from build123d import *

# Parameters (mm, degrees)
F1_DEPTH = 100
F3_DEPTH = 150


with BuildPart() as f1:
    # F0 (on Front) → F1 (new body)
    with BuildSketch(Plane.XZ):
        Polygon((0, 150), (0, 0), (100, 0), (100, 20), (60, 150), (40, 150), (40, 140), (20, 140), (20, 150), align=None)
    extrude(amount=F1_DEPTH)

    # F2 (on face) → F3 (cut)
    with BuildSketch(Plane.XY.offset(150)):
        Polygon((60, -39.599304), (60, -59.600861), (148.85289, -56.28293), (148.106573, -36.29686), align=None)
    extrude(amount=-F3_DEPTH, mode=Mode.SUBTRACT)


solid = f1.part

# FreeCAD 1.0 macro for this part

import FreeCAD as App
import Part
import Sketcher
Q = App.Units.Quantity

doc = App.newDocument("Part")
params = doc.addObject("Spreadsheet::Sheet", "Params")
for row, (alias, value) in enumerate([
    ("sketch1_width", "100 mm"),
    ("sketch1_width2", "20 mm"),
    ("sketch1_height", "150 mm"),
    ("sketch1_height2", "10 mm"),
    ("pad1_length", "100 mm"),
    ("sketch2_length", "20 mm"),
    ("pocket1_length", "150 mm"),
], start=1):
    params.set(f"A{row}", alias)
    params.set(f"B{row}", "=" + value)
    params.setAlias(f"B{row}", alias)

body = doc.addObject("PartDesign::Body", "Body")

# Sketch on XZ plane
sketch1 = doc.addObject("Sketcher::SketchObject", "Sketch")
body.addObject(sketch1)
sketch1.AttachmentSupport = (doc.XZ_Plane, [""])
sketch1.MapMode = "FlatFace"
sketch1.addGeometry([
    Part.LineSegment(App.Vector(0, 150, 0), App.Vector(0, 0, 0)),  # 0
    Part.LineSegment(App.Vector(0, 0, 0), App.Vector(100, 0, 0)),  # 1
    Part.LineSegment(App.Vector(100, 0, 0), App.Vector(100, 20, 0)),  # 2
    Part.LineSegment(App.Vector(100, 20, 0), App.Vector(60, 150, 0)),  # 3
    Part.LineSegment(App.Vector(60, 150, 0), App.Vector(40, 150, 0)),  # 4
    Part.LineSegment(App.Vector(40, 150, 0), App.Vector(40, 140, 0)),  # 5
    Part.LineSegment(App.Vector(40, 140, 0), App.Vector(20, 140, 0)),  # 6
    Part.LineSegment(App.Vector(20, 140, 0), App.Vector(20, 150, 0)),  # 7
    Part.LineSegment(App.Vector(20, 150, 0), App.Vector(0, 150, 0)),  # 8
], False)
sketch1.addConstraint([
    Sketcher.Constraint("Coincident", 0, 2, 1, 1),
    Sketcher.Constraint("Coincident", 1, 2, 2, 1),
    Sketcher.Constraint("Coincident", 2, 2, 3, 1),
    Sketcher.Constraint("Coincident", 3, 2, 4, 1),
    Sketcher.Constraint("Coincident", 4, 2, 5, 1),
    Sketcher.Constraint("Coincident", 5, 2, 6, 1),
    Sketcher.Constraint("Coincident", 6, 2, 7, 1),
    Sketcher.Constraint("Coincident", 7, 2, 8, 1),
    Sketcher.Constraint("Coincident", 8, 2, 0, 1),
    Sketcher.Constraint("Vertical", 0),
    Sketcher.Constraint("Horizontal", 1),
    Sketcher.Constraint("Vertical", 2),
    Sketcher.Constraint("Horizontal", 4),
    Sketcher.Constraint("Vertical", 5),
    Sketcher.Constraint("Horizontal", 6),
    Sketcher.Constraint("Vertical", 7),
    Sketcher.Constraint("Horizontal", 8),
    Sketcher.Constraint("Coincident", 0, 2, -1, 1),
    Sketcher.Constraint("Horizontal", 4, 2, 7, 2),
    Sketcher.Constraint("Equal", 4, 6),
    Sketcher.Constraint("Equal", 6, 8),
    Sketcher.Constraint("Equal", 8, 2),
    Sketcher.Constraint("DistanceX", 1, 1, 1, 2, Q("100 mm")),
    Sketcher.Constraint("DistanceX", 4, 2, 4, 1, Q("20 mm")),
    Sketcher.Constraint("DistanceY", 0, 2, 0, 1, Q("150 mm")),
    Sketcher.Constraint("DistanceY", 5, 2, 5, 1, Q("10 mm")),
])
sketch1.setExpression("Constraints[22]", "Params.sketch1_width")
sketch1.setExpression("Constraints[23]", "Params.sketch1_width2")
sketch1.setExpression("Constraints[24]", "Params.sketch1_height")
sketch1.setExpression("Constraints[25]", "Params.sketch1_height2")
pad1 = doc.addObject("PartDesign::Pad", "Pad")
body.addObject(pad1)
pad1.Profile = sketch1
pad1.setExpression("Length", "Params.pad1_length")

# Sketch on XY plane
sketch2 = doc.addObject("Sketcher::SketchObject", "Sketch001")
body.addObject(sketch2)
sketch2.AttachmentSupport = (doc.XY_Plane, [""])
sketch2.MapMode = "FlatFace"
sketch2.AttachmentOffset = App.Placement(App.Vector(0, 0, 150), App.Rotation())
sketch2.addGeometry([
    Part.LineSegment(App.Vector(60, -39.599304, 0), App.Vector(60, -59.600861, 0)),
    Part.LineSegment(App.Vector(60, -59.600861, 0), App.Vector(148.85289, -56.28293, 0)),
    Part.LineSegment(App.Vector(148.85289, -56.28293, 0), App.Vector(148.106573, -36.29686, 0)),
    Part.LineSegment(App.Vector(148.106573, -36.29686, 0), App.Vector(60, -39.599304, 0)),
], False)
sketch2.addConstraint([
    Sketcher.Constraint("Coincident", 0, 2, 1, 1),
    Sketcher.Constraint("Coincident", 1, 2, 2, 1),
    Sketcher.Constraint("Coincident", 2, 2, 3, 1),
    Sketcher.Constraint("Coincident", 3, 2, 0, 1),
    Sketcher.Constraint("Vertical", 0),
    Sketcher.Constraint("Perpendicular", 1, 2),
    Sketcher.Constraint("Distance", 2, Q("20 mm")),
    Sketcher.Constraint("DistanceX", -1, 1, 0, 2, Q("60 mm")),
    Sketcher.Constraint("DistanceY", 0, 2, 2, 2, Q("23.304001 mm")),
    Sketcher.Constraint("DistanceY", 0, 2, 0, 1, Q("20.001557 mm")),
    Sketcher.Constraint("DistanceY", 0, 2, -1, 1, Q("59.600861 mm")),
    Sketcher.Constraint("DistanceX", -1, 1, 1, 2, Q("148.85289 mm")),
])
sketch2.setExpression("Constraints[6]", "Params.sketch2_length")
pocket1 = doc.addObject("PartDesign::Pocket", "Pocket")
body.addObject(pocket1)
pocket1.Profile = sketch2
pocket1.setExpression("Length", "Params.pocket1_length")

doc.recompute()
